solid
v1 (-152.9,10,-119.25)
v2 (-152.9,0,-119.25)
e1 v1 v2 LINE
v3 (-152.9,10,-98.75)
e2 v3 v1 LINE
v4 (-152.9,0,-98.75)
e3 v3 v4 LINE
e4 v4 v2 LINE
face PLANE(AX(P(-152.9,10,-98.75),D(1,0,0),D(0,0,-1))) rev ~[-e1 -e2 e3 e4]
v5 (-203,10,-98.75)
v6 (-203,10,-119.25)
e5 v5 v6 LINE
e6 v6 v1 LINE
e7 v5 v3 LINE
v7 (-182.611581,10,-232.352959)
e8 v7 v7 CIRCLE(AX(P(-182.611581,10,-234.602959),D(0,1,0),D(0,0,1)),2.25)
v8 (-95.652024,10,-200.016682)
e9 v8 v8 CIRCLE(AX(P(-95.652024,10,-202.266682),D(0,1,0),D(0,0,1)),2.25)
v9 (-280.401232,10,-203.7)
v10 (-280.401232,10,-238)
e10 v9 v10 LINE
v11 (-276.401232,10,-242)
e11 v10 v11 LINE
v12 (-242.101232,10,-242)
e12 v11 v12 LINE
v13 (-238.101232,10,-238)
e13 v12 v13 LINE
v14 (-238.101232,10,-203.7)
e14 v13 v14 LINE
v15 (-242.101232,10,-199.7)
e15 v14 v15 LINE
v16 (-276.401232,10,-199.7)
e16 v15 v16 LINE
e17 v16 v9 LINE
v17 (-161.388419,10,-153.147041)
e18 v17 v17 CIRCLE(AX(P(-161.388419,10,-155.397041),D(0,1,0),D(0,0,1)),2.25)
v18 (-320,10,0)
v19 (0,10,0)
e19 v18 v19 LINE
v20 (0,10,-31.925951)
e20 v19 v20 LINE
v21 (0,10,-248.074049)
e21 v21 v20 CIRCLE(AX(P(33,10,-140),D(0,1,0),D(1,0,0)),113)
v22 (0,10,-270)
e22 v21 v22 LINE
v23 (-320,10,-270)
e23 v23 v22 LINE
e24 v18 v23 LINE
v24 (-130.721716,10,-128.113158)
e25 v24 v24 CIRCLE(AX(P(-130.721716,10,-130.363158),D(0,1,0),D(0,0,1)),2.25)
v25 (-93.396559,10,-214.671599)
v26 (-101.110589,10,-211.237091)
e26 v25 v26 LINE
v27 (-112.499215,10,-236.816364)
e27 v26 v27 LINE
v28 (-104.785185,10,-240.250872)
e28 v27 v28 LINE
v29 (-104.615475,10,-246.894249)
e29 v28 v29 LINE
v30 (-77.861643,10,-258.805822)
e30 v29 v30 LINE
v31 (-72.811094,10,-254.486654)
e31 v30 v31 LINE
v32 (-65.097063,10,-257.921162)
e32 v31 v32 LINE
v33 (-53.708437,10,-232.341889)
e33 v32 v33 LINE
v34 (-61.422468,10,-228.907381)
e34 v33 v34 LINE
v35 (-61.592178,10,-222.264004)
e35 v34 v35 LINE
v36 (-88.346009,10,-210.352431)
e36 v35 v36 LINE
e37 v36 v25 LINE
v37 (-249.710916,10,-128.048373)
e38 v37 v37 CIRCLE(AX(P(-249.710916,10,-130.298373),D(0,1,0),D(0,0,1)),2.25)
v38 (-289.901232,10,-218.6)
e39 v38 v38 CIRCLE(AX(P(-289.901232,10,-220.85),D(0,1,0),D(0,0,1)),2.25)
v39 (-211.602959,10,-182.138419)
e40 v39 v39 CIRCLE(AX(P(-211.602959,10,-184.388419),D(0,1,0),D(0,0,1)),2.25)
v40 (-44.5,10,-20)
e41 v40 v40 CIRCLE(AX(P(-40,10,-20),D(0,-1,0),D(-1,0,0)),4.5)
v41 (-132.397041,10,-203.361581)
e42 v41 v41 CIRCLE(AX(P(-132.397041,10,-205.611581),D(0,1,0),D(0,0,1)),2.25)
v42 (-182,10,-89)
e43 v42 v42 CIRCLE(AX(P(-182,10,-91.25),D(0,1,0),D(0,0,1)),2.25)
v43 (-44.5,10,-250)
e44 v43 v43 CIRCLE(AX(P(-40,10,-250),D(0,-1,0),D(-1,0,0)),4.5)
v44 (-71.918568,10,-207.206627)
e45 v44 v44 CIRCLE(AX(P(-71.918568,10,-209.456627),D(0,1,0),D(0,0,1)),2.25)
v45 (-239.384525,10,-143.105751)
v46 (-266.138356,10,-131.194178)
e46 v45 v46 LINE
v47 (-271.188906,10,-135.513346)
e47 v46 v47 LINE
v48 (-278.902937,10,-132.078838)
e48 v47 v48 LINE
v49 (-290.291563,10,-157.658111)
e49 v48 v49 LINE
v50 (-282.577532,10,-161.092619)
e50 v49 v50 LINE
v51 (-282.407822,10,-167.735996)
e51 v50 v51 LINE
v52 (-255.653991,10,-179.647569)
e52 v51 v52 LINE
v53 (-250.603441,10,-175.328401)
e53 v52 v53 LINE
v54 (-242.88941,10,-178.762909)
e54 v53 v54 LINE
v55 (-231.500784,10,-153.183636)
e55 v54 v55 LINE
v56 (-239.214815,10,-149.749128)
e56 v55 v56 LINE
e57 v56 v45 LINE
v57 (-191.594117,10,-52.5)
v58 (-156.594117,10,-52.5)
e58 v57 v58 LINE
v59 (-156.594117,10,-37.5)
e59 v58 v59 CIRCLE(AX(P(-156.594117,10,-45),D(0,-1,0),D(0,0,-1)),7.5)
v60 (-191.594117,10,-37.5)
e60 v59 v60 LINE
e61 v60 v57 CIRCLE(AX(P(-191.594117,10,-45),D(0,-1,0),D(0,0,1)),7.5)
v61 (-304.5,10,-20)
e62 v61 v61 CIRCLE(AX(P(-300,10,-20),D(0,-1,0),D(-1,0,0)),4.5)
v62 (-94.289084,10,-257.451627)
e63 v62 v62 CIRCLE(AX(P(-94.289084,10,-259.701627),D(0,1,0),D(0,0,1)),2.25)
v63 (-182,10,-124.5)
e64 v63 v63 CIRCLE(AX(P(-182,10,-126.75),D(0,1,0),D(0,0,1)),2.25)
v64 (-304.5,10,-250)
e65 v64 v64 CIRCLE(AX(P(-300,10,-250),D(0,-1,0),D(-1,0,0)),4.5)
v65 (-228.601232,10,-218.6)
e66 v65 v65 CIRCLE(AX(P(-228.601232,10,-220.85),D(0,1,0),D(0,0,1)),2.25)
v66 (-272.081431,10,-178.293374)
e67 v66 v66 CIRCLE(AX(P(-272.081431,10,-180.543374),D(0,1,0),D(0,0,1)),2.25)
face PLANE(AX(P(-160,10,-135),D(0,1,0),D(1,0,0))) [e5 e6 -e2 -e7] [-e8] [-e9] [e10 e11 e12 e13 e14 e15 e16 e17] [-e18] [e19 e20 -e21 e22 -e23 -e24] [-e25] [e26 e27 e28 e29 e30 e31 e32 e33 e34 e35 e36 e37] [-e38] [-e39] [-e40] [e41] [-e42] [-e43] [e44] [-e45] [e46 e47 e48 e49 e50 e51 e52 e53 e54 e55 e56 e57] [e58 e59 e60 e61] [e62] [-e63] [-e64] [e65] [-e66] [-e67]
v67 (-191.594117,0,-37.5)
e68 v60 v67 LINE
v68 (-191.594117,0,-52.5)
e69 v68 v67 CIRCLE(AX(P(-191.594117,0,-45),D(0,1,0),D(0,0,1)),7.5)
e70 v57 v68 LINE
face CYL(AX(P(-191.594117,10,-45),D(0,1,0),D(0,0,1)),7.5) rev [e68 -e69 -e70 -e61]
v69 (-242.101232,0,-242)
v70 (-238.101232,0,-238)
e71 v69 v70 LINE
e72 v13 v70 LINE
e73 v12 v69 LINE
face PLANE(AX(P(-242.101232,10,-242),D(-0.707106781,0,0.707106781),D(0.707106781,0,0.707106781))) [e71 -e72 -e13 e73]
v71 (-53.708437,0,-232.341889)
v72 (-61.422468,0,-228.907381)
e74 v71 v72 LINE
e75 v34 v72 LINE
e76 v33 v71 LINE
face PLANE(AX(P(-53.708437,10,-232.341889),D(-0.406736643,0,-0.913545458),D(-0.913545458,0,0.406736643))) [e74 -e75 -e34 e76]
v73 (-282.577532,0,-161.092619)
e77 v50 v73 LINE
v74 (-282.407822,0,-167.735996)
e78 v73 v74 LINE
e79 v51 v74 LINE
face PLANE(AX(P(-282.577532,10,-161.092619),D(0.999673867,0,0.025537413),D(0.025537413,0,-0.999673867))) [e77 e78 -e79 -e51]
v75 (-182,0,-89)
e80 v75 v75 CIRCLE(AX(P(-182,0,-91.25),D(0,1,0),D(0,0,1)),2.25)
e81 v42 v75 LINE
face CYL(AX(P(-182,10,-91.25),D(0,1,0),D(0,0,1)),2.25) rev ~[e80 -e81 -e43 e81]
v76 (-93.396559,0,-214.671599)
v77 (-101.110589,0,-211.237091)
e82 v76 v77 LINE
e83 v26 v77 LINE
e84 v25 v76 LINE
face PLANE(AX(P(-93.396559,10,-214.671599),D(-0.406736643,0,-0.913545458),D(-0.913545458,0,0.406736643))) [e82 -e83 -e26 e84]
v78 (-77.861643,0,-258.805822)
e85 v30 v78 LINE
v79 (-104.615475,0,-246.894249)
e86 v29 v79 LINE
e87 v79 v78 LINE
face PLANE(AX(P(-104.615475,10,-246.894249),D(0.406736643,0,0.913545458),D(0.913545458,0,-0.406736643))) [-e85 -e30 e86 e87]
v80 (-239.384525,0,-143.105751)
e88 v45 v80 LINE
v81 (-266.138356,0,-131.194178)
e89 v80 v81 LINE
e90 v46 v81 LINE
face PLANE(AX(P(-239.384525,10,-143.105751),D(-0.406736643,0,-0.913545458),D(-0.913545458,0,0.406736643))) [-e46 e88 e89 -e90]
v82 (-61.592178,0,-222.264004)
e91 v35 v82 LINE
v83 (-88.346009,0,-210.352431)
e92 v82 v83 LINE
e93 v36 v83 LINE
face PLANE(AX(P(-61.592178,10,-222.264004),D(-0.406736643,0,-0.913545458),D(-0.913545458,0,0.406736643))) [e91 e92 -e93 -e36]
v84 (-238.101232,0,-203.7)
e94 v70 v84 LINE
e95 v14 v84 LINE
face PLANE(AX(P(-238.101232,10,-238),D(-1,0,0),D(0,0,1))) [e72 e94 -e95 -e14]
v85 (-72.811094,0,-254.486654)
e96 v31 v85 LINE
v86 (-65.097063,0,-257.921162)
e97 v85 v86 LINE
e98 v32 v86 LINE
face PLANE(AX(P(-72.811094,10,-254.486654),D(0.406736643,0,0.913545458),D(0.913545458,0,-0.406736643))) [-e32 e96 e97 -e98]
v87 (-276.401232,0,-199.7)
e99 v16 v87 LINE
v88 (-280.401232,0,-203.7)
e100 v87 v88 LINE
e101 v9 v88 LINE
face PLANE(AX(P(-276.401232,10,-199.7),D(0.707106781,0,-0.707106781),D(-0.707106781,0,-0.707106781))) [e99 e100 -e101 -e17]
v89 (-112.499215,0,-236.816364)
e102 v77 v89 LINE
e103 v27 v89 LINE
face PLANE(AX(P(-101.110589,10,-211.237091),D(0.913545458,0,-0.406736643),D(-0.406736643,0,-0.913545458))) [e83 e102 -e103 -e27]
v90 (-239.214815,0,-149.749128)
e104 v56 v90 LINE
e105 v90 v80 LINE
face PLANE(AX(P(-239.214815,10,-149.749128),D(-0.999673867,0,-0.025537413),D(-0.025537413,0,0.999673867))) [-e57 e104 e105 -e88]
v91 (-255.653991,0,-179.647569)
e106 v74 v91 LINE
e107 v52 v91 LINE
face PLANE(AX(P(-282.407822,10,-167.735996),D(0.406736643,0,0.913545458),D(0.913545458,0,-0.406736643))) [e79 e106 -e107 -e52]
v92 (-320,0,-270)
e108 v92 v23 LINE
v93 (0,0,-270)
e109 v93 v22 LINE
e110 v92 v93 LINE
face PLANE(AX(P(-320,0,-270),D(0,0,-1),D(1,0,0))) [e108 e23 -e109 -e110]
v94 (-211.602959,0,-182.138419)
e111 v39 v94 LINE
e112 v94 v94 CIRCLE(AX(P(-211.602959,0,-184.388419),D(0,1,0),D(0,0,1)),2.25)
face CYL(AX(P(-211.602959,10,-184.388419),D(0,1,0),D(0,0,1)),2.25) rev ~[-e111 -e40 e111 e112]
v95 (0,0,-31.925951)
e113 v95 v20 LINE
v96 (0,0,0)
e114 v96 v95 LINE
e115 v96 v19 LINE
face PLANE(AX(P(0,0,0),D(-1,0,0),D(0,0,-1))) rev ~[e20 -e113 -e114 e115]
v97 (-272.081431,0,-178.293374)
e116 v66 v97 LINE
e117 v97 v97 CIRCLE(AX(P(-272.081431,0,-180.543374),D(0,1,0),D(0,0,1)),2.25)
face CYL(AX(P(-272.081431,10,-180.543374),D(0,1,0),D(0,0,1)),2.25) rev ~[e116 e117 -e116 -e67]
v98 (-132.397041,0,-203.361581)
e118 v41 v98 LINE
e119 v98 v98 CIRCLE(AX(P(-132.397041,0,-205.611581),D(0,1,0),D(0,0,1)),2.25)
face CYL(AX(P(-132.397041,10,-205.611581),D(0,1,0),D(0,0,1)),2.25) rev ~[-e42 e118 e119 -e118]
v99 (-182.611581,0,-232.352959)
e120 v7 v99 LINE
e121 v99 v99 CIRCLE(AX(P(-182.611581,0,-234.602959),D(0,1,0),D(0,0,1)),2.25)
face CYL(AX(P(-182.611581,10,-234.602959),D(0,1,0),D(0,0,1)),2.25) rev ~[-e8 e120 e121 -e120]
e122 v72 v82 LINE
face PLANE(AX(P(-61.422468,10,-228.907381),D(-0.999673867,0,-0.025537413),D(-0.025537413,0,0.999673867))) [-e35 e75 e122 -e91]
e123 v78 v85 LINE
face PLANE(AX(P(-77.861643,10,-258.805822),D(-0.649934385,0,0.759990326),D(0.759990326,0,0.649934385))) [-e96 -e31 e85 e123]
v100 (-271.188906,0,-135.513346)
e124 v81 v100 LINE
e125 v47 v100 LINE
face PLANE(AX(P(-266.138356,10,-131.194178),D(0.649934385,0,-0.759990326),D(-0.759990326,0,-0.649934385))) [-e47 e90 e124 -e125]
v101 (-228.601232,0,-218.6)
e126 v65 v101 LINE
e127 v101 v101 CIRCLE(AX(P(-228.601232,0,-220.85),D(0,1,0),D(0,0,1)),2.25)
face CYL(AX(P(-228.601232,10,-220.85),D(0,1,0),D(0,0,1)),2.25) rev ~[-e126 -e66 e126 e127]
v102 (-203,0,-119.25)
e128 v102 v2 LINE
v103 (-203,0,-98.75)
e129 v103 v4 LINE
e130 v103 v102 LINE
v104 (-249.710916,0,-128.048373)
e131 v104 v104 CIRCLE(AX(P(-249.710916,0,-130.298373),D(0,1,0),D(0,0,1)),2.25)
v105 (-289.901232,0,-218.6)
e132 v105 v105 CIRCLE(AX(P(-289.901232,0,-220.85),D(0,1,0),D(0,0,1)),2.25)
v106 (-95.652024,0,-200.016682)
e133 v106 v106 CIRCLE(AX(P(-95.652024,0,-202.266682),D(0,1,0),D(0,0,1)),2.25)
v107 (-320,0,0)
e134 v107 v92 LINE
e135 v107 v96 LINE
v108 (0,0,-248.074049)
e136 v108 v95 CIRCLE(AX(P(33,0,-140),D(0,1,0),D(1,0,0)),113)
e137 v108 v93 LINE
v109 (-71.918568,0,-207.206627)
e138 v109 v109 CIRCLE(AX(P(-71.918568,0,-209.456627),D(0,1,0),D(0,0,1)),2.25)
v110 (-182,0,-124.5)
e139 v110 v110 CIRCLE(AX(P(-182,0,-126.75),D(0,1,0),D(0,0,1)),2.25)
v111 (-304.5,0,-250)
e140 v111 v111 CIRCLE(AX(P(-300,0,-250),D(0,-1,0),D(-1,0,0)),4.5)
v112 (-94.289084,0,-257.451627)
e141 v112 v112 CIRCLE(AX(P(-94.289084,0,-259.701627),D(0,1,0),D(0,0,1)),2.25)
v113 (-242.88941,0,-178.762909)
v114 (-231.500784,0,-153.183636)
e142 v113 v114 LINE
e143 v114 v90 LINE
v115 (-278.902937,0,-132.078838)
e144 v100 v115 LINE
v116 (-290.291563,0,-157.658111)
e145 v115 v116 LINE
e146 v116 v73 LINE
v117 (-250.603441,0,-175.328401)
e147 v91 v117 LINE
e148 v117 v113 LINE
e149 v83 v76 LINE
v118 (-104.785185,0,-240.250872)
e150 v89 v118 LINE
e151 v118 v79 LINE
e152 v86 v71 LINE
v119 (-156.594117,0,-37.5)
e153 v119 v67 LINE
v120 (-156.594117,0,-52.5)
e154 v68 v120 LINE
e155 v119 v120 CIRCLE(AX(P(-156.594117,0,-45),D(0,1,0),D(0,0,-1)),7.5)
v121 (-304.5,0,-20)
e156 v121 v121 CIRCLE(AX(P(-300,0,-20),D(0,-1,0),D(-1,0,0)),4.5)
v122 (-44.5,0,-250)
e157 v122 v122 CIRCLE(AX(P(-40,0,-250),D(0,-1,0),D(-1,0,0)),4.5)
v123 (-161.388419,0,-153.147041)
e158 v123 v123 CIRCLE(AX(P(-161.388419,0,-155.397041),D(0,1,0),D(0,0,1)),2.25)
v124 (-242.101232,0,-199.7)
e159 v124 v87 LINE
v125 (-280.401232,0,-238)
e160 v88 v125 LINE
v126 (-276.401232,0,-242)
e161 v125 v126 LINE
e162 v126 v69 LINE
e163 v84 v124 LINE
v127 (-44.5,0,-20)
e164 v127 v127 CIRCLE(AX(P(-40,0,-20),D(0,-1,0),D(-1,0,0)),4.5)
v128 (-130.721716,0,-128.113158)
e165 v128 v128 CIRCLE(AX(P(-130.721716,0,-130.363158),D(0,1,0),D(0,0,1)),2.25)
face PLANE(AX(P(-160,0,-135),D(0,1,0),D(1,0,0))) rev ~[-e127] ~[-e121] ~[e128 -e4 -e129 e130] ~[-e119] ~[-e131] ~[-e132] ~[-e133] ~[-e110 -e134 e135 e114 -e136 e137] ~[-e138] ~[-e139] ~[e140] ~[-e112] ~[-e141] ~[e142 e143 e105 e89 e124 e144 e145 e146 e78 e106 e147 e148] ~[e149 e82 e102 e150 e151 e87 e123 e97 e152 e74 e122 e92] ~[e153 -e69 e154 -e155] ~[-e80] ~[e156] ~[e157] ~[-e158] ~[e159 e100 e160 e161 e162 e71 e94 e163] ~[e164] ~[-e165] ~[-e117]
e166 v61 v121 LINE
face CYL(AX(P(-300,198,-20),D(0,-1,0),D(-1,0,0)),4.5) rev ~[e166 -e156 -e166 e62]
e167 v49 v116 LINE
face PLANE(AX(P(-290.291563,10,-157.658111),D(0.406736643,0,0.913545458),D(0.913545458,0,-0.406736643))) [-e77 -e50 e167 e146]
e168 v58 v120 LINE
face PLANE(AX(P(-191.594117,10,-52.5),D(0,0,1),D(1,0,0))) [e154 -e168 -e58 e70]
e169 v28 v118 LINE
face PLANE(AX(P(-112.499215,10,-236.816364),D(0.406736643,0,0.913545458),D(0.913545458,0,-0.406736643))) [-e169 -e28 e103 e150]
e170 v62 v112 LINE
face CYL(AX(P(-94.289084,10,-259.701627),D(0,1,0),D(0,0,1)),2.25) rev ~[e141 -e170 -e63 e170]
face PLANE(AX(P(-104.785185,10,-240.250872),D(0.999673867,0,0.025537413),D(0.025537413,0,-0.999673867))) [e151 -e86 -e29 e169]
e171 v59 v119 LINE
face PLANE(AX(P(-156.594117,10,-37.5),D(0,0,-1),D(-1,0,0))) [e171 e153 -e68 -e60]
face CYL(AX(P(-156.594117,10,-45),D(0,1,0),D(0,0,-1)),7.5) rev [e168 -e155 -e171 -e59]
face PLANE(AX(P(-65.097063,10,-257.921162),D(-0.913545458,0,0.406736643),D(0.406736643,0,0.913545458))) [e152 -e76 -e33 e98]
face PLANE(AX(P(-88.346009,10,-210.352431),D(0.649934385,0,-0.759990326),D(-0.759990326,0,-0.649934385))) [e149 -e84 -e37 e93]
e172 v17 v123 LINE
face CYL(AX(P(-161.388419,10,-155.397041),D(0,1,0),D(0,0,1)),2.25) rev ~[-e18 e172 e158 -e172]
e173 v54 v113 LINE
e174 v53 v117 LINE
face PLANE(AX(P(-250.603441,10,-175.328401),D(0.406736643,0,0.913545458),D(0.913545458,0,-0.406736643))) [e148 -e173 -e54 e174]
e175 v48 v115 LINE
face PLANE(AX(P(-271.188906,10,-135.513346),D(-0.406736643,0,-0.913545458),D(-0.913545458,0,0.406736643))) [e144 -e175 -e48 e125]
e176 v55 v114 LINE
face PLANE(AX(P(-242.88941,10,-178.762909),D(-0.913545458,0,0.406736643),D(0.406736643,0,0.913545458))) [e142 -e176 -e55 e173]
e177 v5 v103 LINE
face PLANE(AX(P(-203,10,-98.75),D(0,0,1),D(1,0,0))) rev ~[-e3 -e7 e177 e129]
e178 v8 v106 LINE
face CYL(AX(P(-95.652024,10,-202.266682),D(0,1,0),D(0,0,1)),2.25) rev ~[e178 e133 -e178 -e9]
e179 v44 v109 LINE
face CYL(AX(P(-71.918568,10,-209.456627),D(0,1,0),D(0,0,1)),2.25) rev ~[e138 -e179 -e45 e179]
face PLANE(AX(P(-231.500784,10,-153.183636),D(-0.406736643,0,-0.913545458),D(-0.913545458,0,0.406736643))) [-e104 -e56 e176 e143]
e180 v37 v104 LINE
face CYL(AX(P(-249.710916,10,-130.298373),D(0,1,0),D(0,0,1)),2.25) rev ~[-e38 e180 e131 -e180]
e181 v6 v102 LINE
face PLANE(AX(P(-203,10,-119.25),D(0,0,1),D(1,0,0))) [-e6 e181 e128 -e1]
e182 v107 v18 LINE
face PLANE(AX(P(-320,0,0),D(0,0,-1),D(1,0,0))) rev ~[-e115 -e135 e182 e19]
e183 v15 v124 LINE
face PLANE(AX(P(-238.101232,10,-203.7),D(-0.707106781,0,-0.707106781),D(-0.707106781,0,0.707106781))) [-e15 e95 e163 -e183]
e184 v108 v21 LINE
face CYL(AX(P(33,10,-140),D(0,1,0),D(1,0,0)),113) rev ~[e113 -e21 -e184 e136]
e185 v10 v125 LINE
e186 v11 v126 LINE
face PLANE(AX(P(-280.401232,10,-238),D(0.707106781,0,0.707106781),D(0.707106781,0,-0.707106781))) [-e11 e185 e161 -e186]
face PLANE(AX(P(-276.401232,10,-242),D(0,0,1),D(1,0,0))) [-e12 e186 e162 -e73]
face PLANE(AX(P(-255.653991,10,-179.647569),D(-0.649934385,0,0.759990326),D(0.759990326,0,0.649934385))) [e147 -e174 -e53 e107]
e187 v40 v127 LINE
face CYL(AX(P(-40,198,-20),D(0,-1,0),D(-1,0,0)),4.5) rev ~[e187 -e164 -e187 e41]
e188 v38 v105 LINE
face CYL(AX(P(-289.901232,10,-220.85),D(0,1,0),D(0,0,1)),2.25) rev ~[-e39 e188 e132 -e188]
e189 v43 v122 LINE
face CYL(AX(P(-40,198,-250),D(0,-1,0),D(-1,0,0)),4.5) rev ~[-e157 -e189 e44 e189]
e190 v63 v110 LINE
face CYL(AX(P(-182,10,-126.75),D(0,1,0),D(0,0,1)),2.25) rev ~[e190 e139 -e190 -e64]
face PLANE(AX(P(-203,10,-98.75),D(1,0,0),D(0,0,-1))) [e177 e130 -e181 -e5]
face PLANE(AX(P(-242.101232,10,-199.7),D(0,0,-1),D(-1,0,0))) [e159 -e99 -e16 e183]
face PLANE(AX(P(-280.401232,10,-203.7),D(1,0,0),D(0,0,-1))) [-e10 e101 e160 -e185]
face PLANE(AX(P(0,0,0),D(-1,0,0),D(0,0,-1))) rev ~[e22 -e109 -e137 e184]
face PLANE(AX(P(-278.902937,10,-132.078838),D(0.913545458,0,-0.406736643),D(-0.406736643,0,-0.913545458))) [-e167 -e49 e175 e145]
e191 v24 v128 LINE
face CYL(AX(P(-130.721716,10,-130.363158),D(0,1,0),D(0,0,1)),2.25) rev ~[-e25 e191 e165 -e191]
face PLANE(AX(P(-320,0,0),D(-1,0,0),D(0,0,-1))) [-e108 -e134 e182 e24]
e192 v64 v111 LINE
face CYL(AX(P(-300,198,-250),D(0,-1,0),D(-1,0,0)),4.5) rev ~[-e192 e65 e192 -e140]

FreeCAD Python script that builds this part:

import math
import FreeCAD as App
import Part
import Sketcher

V = App.Vector
Q = App.Units.Quantity

doc = App.newDocument("Part")
body = doc.addObject("PartDesign::Body", "Body")

# Sketch on XZ plane
sketch1 = doc.addObject("Sketcher::SketchObject", "Sketch")
body.addObject(sketch1)
sketch1.AttachmentSupport = (doc.XZ_Plane, [""])
sketch1.MapMode = "FlatFace"
sketch1.addGeometry([
    Part.LineSegment(V(-320, -270, 0), V(-320, 0, 0)),
    Part.LineSegment(V(-320, 0, 0), V(0, 0, 0)),
    Part.LineSegment(V(0, 0, 0), V(0, -270, 0)),
    Part.LineSegment(V(0, -270, 0), V(-320, -270, 0)),
], False)
sketch1.addConstraint([
    Sketcher.Constraint("Coincident", 0, 2, 1, 1),
    Sketcher.Constraint("Coincident", 1, 2, 2, 1),
    Sketcher.Constraint("Coincident", 2, 2, 3, 1),
    Sketcher.Constraint("Coincident", 3, 2, 0, 1),
    Sketcher.Constraint("Vertical", 0),
    Sketcher.Constraint("Horizontal", 1),
    Sketcher.Constraint("Vertical", 2),
    Sketcher.Constraint("Horizontal", 3),
    Sketcher.Constraint("Coincident", 1, 2, -1, 1),
    Sketcher.Constraint("DistanceX", 1, 1, 1, 2, Q("320 mm")),
    Sketcher.Constraint("DistanceY", 0, 1, 0, 2, Q("270 mm")),
])
pad1 = doc.addObject("PartDesign::Pad", "Pad")
body.addObject(pad1)
pad1.Profile = sketch1
pad1.Length = 10
pad1.Reversed = True

# Sketch on XZ plane
sketch2 = doc.addObject("Sketcher::SketchObject", "Sketch001")
body.addObject(sketch2)
sketch2.AttachmentSupport = (doc.XZ_Plane, [""])
sketch2.MapMode = "FlatFace"
sketch2.AttachmentOffset = App.Placement(V(0, 0, -10), App.Rotation())
sketch2.addGeometry([
    Part.Circle(V(-132.397041, -205.611581, 0), V(0, 0, 1), 2.25),
    Part.Circle(V(-161.388419, -155.397041, 0), V(0, 0, 1), 2.25),
    Part.Circle(V(-182.611581, -234.602959, 0), V(0, 0, 1), 2.25),
    Part.Circle(V(-211.602959, -184.388419, 0), V(0, 0, 1), 2.25),
], False)
sketch2.addConstraint([
    Sketcher.Constraint("Equal", 0, 1),
    Sketcher.Constraint("Equal", 1, 2),
    Sketcher.Constraint("Equal", 2, 3),
    Sketcher.Constraint("Diameter", 0, Q("4.5 mm")),
    Sketcher.Constraint("DistanceX", 0, 3, -1, 1, Q("132.397041 mm")),
    Sketcher.Constraint("DistanceY", 0, 3, -1, 1, Q("205.611581 mm")),
    Sketcher.Constraint("DistanceX", 1, 3, -1, 1, Q("161.388419 mm")),
    Sketcher.Constraint("DistanceY", 1, 3, -1, 1, Q("155.397041 mm")),
    Sketcher.Constraint("DistanceX", 2, 3, -1, 1, Q("182.611581 mm")),
    Sketcher.Constraint("DistanceY", 2, 3, -1, 1, Q("234.602959 mm")),
    Sketcher.Constraint("DistanceX", 3, 3, -1, 1, Q("211.602959 mm")),
    Sketcher.Constraint("DistanceY", 3, 3, -1, 1, Q("184.388419 mm")),
])
pocket1 = doc.addObject("PartDesign::Pocket", "Pocket")
body.addObject(pocket1)
pocket1.Profile = sketch2
pocket1.Length = 10
pocket1.Reversed = True

# Sketch on XZ plane
sketch3 = doc.addObject("Sketcher::SketchObject", "Sketch002")
body.addObject(sketch3)
sketch3.AttachmentSupport = (doc.XZ_Plane, [""])
sketch3.MapMode = "FlatFace"
sketch3.AttachmentOffset = App.Placement(V(0, 0, -10), App.Rotation())
sketch3.addGeometry([
    Part.Circle(V(-272.081431, -180.543374, 0), V(0, 0, 1), 2.25),  # 0
    Part.Circle(V(-249.710916, -130.298373, 0), V(0, 0, 1), 2.25),  # 1
    Part.Circle(V(-94.289084, -259.701627, 0), V(0, 0, 1), 2.25),  # 2
    Part.Circle(V(-71.918568, -209.456627, 0), V(0, 0, 1), 2.25),  # 3
    Part.LineSegment(V(-104.785185, -240.250872, 0), V(-112.499215, -236.816364, 0)),  # 4
    Part.LineSegment(V(-112.499215, -236.816364, 0), V(-101.110589, -211.237091, 0)),  # 5
    Part.LineSegment(V(-101.110589, -211.237091, 0), V(-93.396559, -214.671599, 0)),  # 6
    Part.LineSegment(V(-93.396559, -214.671599, 0), V(-88.346009, -210.352431, 0)),  # 7
    Part.LineSegment(V(-88.346009, -210.352431, 0), V(-61.592178, -222.264004, 0)),  # 8
    Part.LineSegment(V(-61.592178, -222.264004, 0), V(-61.422468, -228.907381, 0)),  # 9
    Part.LineSegment(V(-61.422468, -228.907381, 0), V(-53.708437, -232.341889, 0)),  # 10
    Part.LineSegment(V(-53.708437, -232.341889, 0), V(-65.097063, -257.921162, 0)),  # 11
    Part.LineSegment(V(-65.097063, -257.921162, 0), V(-72.811094, -254.486654, 0)),  # 12
    Part.LineSegment(V(-72.811094, -254.486654, 0), V(-77.861643, -258.805822, 0)),  # 13
    Part.LineSegment(V(-77.861643, -258.805822, 0), V(-104.615475, -246.894249, 0)),  # 14
    Part.LineSegment(V(-104.615475, -246.894249, 0), V(-104.785185, -240.250872, 0)),  # 15
    Part.LineSegment(V(-231.500784, -153.183636, 0), V(-242.88941, -178.762909, 0)),  # 16
    Part.LineSegment(V(-242.88941, -178.762909, 0), V(-250.603441, -175.328401, 0)),  # 17
    Part.LineSegment(V(-250.603441, -175.328401, 0), V(-255.653991, -179.647569, 0)),  # 18
    Part.LineSegment(V(-255.653991, -179.647569, 0), V(-282.407822, -167.735996, 0)),  # 19
    Part.LineSegment(V(-282.407822, -167.735996, 0), V(-282.577532, -161.092619, 0)),  # 20
    Part.LineSegment(V(-282.577532, -161.092619, 0), V(-290.291563, -157.658111, 0)),  # 21
    Part.LineSegment(V(-290.291563, -157.658111, 0), V(-278.902937, -132.078838, 0)),  # 22
    Part.LineSegment(V(-278.902937, -132.078838, 0), V(-271.188906, -135.513346, 0)),  # 23
    Part.LineSegment(V(-271.188906, -135.513346, 0), V(-266.138356, -131.194178, 0)),  # 24
    Part.LineSegment(V(-266.138356, -131.194178, 0), V(-239.384525, -143.105751, 0)),  # 25
    Part.LineSegment(V(-239.384525, -143.105751, 0), V(-239.214815, -149.749128, 0)),  # 26
    Part.LineSegment(V(-239.214815, -149.749128, 0), V(-231.500784, -153.183636, 0)),  # 27
], False)
sketch3.addConstraint([
    Sketcher.Constraint("Coincident", 4, 2, 5, 1),
    Sketcher.Constraint("Coincident", 5, 2, 6, 1),
    Sketcher.Constraint("Coincident", 6, 2, 7, 1),
    Sketcher.Constraint("Coincident", 7, 2, 8, 1),
    Sketcher.Constraint("Coincident", 8, 2, 9, 1),
    Sketcher.Constraint("Coincident", 9, 2, 10, 1),
    Sketcher.Constraint("Coincident", 10, 2, 11, 1),
    Sketcher.Constraint("Coincident", 11, 2, 12, 1),
    Sketcher.Constraint("Coincident", 12, 2, 13, 1),
    Sketcher.Constraint("Coincident", 13, 2, 14, 1),
    Sketcher.Constraint("Coincident", 14, 2, 15, 1),
    Sketcher.Constraint("Coincident", 15, 2, 4, 1),
    Sketcher.Constraint("Coincident", 16, 2, 17, 1),
    Sketcher.Constraint("Coincident", 17, 2, 18, 1),
    Sketcher.Constraint("Coincident", 18, 2, 19, 1),
    Sketcher.Constraint("Coincident", 19, 2, 20, 1),
    Sketcher.Constraint("Coincident", 20, 2, 21, 1),
    Sketcher.Constraint("Coincident", 21, 2, 22, 1),
    Sketcher.Constraint("Coincident", 22, 2, 23, 1),
    Sketcher.Constraint("Coincident", 23, 2, 24, 1),
    Sketcher.Constraint("Coincident", 24, 2, 25, 1),
    Sketcher.Constraint("Coincident", 25, 2, 26, 1),
    Sketcher.Constraint("Coincident", 26, 2, 27, 1),
    Sketcher.Constraint("Coincident", 27, 2, 16, 1),
    Sketcher.Constraint("Equal", 0, 1),
    Sketcher.Constraint("Equal", 1, 2),
    Sketcher.Constraint("Equal", 2, 3),
    Sketcher.Constraint("Perpendicular", 4, 5),
    Sketcher.Constraint("Perpendicular", 5, 6),
    Sketcher.Constraint("Parallel", 6, 8),
    Sketcher.Constraint("Parallel", 8, 10),
    Sketcher.Constraint("Perpendicular", 10, 11),
    Sketcher.Constraint("Perpendicular", 11, 12),
    Sketcher.Constraint("Parallel", 7, 13),
    Sketcher.Constraint("Parallel", 12, 14),
    Sketcher.Constraint("Parallel", 9, 15),
    Sketcher.Constraint("Perpendicular", 14, 16),
    Sketcher.Constraint("Perpendicular", 16, 17),
    Sketcher.Constraint("Parallel", 13, 18),
    Sketcher.Constraint("Parallel", 17, 19),
    Sketcher.Constraint("Parallel", 15, 20),
    Sketcher.Constraint("Parallel", 19, 21),
    Sketcher.Constraint("Perpendicular", 21, 22),
    Sketcher.Constraint("Perpendicular", 22, 23),
    Sketcher.Constraint("Parallel", 18, 24),
    Sketcher.Constraint("Parallel", 23, 25),
    Sketcher.Constraint("Parallel", 20, 26),
    Sketcher.Constraint("Parallel", 25, 27),
    Sketcher.Constraint("Equal", 4, 6),
    Sketcher.Constraint("Equal", 7, 9),
    Sketcher.Constraint("Equal", 6, 10),
    Sketcher.Constraint("Equal", 5, 11),
    Sketcher.Constraint("Equal", 10, 12),
    Sketcher.Constraint("Equal", 9, 13),
    Sketcher.Constraint("Equal", 11, 16),
    Sketcher.Constraint("Equal", 12, 17),
    Sketcher.Constraint("Equal", 15, 18),
    Sketcher.Constraint("Equal", 14, 19),
    Sketcher.Constraint("Equal", 18, 20),
    Sketcher.Constraint("Equal", 17, 21),
    Sketcher.Constraint("Equal", 16, 22),
    Sketcher.Constraint("Equal", 21, 23),
    Sketcher.Constraint("Equal", 20, 24),
    Sketcher.Constraint("Equal", 19, 25),
    Sketcher.Constraint("Diameter", 0, Q("4.5 mm")),
    Sketcher.Constraint("Angle", 4, Q("156 deg")),
    Sketcher.Constraint("Distance", 5, Q("28 mm")),
    Sketcher.Constraint("DistanceY", 0, 3, 1, 3, Q("50.245 mm")),
    Sketcher.Constraint("DistanceY", 2, 3, 3, 3, Q("50.245 mm")),
    Sketcher.Constraint("DistanceY", 6, 2, -1, 1, Q("214.671599 mm")),
    Sketcher.Constraint("DistanceY", 17, 2, -1, 1, Q("175.328401 mm")),
    Sketcher.Constraint("DistanceX", 1, 3, 4, 2, Q("137.211701 mm")),
    Sketcher.Constraint("DistanceX", 3, 3, 9, 2, Q("10.496101 mm")),
    Sketcher.Constraint("DistanceX", 15, 2, 2, 3, Q("10.496101 mm")),
    Sketcher.Constraint("DistanceX", 20, 2, 0, 3, Q("10.496101 mm")),
    Sketcher.Constraint("DistanceX", 1, 3, 26, 2, Q("10.496101 mm")),
    Sketcher.Constraint("Distance", 4, Q("8.444058 mm")),
    Sketcher.Constraint("DistanceX", 0, 3, -1, 1, Q("272.081431 mm")),
    Sketcher.Constraint("DistanceX", 3, 3, -1, 1, Q("71.918568 mm")),
    Sketcher.Constraint("DistanceX", 7, 2, -1, 1, Q("88.346009 mm")),
    Sketcher.Constraint("DistanceY", 7, 2, -1, 1, Q("210.352431 mm")),
    Sketcher.Constraint("DistanceY", 9, 2, -1, 1, Q("228.907381 mm")),
    Sketcher.Constraint("DistanceY", 4, 2, 0, 3, Q("56.27299 mm")),
    Sketcher.Constraint("DistanceY", 2, 3, -1, 1, Q("259.701627 mm")),
])
pocket2 = doc.addObject("PartDesign::Pocket", "Pocket001")
body.addObject(pocket2)
pocket2.Profile = sketch3
pocket2.Length = 33
pocket2.Reversed = True

# Sketch on XZ plane
sketch4 = doc.addObject("Sketcher::SketchObject", "Sketch003")
body.addObject(sketch4)
sketch4.AttachmentSupport = (doc.XZ_Plane, [""])
sketch4.MapMode = "FlatFace"
sketch4.AttachmentOffset = App.Placement(V(0, 0, -10), App.Rotation())
sketch4.addGeometry([
    Part.Circle(V(-300, -20, 0), V(0, 0, 1), 4.5),
    Part.Circle(V(-300, -250, 0), V(0, 0, 1), 4.5),
    Part.Circle(V(-40, -250, 0), V(0, 0, 1), 4.5),
    Part.Circle(V(-40, -20, 0), V(0, 0, 1), 4.5),
], False)
sketch4.addConstraint([
    Sketcher.Constraint("Equal", 0, 1),
    Sketcher.Constraint("Equal", 1, 2),
    Sketcher.Constraint("Equal", 2, 3),
    Sketcher.Constraint("Horizontal", 1, 3, 2, 3),
    Sketcher.Constraint("Horizontal", 0, 3, 3, 3),
    Sketcher.Constraint("Vertical", 0, 3, 1, 3),
    Sketcher.Constraint("Vertical", 2, 3, 3, 3),
    Sketcher.Constraint("Diameter", 0, Q("9 mm")),
    Sketcher.Constraint("DistanceX", 0, 3, -1, 1, Q("300 mm")),
    Sketcher.Constraint("DistanceY", 0, 3, -1, 1, Q("20 mm")),
    Sketcher.Constraint("DistanceY", 1, 3, -1, 1, Q("250 mm")),
    Sketcher.Constraint("DistanceX", 2, 3, -1, 1, Q("40 mm")),
])
doc.recompute()
hole = doc.addObject("PartDesign::Hole", "Hole")
body.addObject(hole)
hole.Profile = sketch4
hole.ThreadType = "None"
hole.Diameter = 9
hole.DepthType = "Dimension"
hole.Depth = 188
hole.DrillPoint = "Angled"
hole.DrillPointAngle = 118
hole.Reversed = True

# Sketch on XZ plane
sketch5 = doc.addObject("Sketcher::SketchObject", "Sketch004")
body.addObject(sketch5)
sketch5.AttachmentSupport = (doc.XZ_Plane, [""])
sketch5.MapMode = "FlatFace"
sketch5.AttachmentOffset = App.Placement(V(0, 0, -10), App.Rotation())
sketch5.addGeometry(Part.Circle(V(33, -140, 0), V(0, 0, 1), 113), False)
sketch5.addConstraint([
    Sketcher.Constraint("Diameter", 0, Q("226 mm")),
    Sketcher.Constraint("DistanceX", -1, 1, 0, 3, Q("33 mm")),
    Sketcher.Constraint("DistanceY", 0, 3, -1, 1, Q("140 mm")),
])
pocket3 = doc.addObject("PartDesign::Pocket", "Pocket002")
body.addObject(pocket3)
pocket3.Profile = sketch5
pocket3.Length = 10
pocket3.Reversed = True

# Sketch on XZ plane
sketch6 = doc.addObject("Sketcher::SketchObject", "Sketch005")
body.addObject(sketch6)
sketch6.AttachmentSupport = (doc.XZ_Plane, [""])
sketch6.MapMode = "FlatFace"
sketch6.AttachmentOffset = App.Placement(V(0, 0, -10), App.Rotation())
sketch6.addGeometry([
    Part.LineSegment(V(-276.401232, -242, 0), V(-280.401232, -238, 0)),  # 0
    Part.LineSegment(V(-280.401232, -238, 0), V(-280.401232, -203.7, 0)),  # 1
    Part.LineSegment(V(-280.401232, -203.7, 0), V(-276.401232, -199.7, 0)),  # 2
    Part.LineSegment(V(-276.401232, -199.7, 0), V(-242.101232, -199.7, 0)),  # 3
    Part.LineSegment(V(-242.101232, -199.7, 0), V(-238.101232, -203.7, 0)),  # 4
    Part.LineSegment(V(-238.101232, -203.7, 0), V(-238.101232, -238, 0)),  # 5
    Part.LineSegment(V(-238.101232, -238, 0), V(-242.101232, -242, 0)),  # 6
    Part.LineSegment(V(-242.101232, -242, 0), V(-276.401232, -242, 0)),  # 7
], False)
sketch6.addConstraint([
    Sketcher.Constraint("Coincident", 0, 2, 1, 1),
    Sketcher.Constraint("Coincident", 1, 2, 2, 1),
    Sketcher.Constraint("Coincident", 2, 2, 3, 1),
    Sketcher.Constraint("Coincident", 3, 2, 4, 1),
    Sketcher.Constraint("Coincident", 4, 2, 5, 1),
    Sketcher.Constraint("Coincident", 5, 2, 6, 1),
    Sketcher.Constraint("Coincident", 6, 2, 7, 1),
    Sketcher.Constraint("Coincident", 7, 2, 0, 1),
    Sketcher.Constraint("Vertical", 1),
    Sketcher.Constraint("Horizontal", 3),
    Sketcher.Constraint("Vertical", 5),
    Sketcher.Constraint("Horizontal", 7),
    Sketcher.Constraint("Perpendicular", 0, 2),
    Sketcher.Constraint("Perpendicular", 2, 4),
    Sketcher.Constraint("Perpendicular", 4, 6),
    Sketcher.Constraint("Horizontal", 1, 2, 4, 2),
    Sketcher.Constraint("Horizontal", 0, 2, 5, 2),
    Sketcher.Constraint("Vertical", 3, 2, 6, 2),
    Sketcher.Constraint("Vertical", 2, 2, 7, 2),
    Sketcher.Constraint("Equal", 7, 1),
    Sketcher.Constraint("DistanceX", 3, 1, 3, 2, Q("34.3 mm")),
    Sketcher.Constraint("DistanceY", 0, 2, -1, 1, Q("238 mm")),
    Sketcher.Constraint("DistanceY", 6, 2, -1, 1, Q("242 mm")),
    Sketcher.Constraint("DistanceX", 0, 2, -1, 1, Q("280.401232 mm")),
])
pocket4 = doc.addObject("PartDesign::Pocket", "Pocket003")
body.addObject(pocket4)
pocket4.Profile = sketch6
pocket4.Length = 22
pocket4.Reversed = True

# Sketch on XZ plane
sketch7 = doc.addObject("Sketcher::SketchObject", "Sketch006")
body.addObject(sketch7)
sketch7.AttachmentSupport = (doc.XZ_Plane, [""])
sketch7.MapMode = "FlatFace"
sketch7.AttachmentOffset = App.Placement(V(0, 0, -10), App.Rotation())
sketch7.addGeometry([
    Part.Circle(V(-228.601232, -220.85, 0), V(0, 0, 1), 2.25),
    Part.Circle(V(-289.901232, -220.85, 0), V(0, 0, 1), 2.25),
], False)
sketch7.addConstraint([
    Sketcher.Constraint("Equal", 0, 1),
    Sketcher.Constraint("Horizontal", 0, 3, 1, 3),
    Sketcher.Constraint("Diameter", 0, Q("4.5 mm")),
    Sketcher.Constraint("DistanceX", 1, 3, 0, 3, Q("61.3 mm")),
    Sketcher.Constraint("DistanceY", 0, 3, -1, 1, Q("220.85 mm")),
    Sketcher.Constraint("DistanceX", 1, 3, -1, 1, Q("289.901232 mm")),
])
pocket5 = doc.addObject("PartDesign::Pocket", "Pocket004")
body.addObject(pocket5)
pocket5.Profile = sketch7
pocket5.Length = 42.3
pocket5.Reversed = True

# Sketch on XZ plane
sketch8 = doc.addObject("Sketcher::SketchObject", "Sketch007")
body.addObject(sketch8)
sketch8.AttachmentSupport = (doc.XZ_Plane, [""])
sketch8.MapMode = "FlatFace"
sketch8.AttachmentOffset = App.Placement(V(0, 0, -10), App.Rotation())
sketch8.addGeometry([
    Part.LineSegment(V(-203, -119.25, 0), V(-203, -98.75, 0)),
    Part.LineSegment(V(-203, -98.75, 0), V(-152.9, -98.75, 0)),
    Part.LineSegment(V(-152.9, -98.75, 0), V(-152.9, -119.25, 0)),
    Part.LineSegment(V(-152.9, -119.25, 0), V(-203, -119.25, 0)),
], False)
sketch8.addConstraint([
    Sketcher.Constraint("Coincident", 0, 2, 1, 1),
    Sketcher.Constraint("Coincident", 1, 2, 2, 1),
    Sketcher.Constraint("Coincident", 2, 2, 3, 1),
    Sketcher.Constraint("Coincident", 3, 2, 0, 1),
    Sketcher.Constraint("Vertical", 0),
    Sketcher.Constraint("Horizontal", 1),
    Sketcher.Constraint("Vertical", 2),
    Sketcher.Constraint("Horizontal", 3),
    Sketcher.Constraint("DistanceX", 1, 1, 1, 2, Q("50.1 mm")),
    Sketcher.Constraint("DistanceY", 0, 1, 0, 2, Q("20.5 mm")),
    Sketcher.Constraint("DistanceX", 0, 2, -1, 1, Q("203 mm")),
    Sketcher.Constraint("DistanceY", 0, 2, -1, 1, Q("98.75 mm")),
])
pocket6 = doc.addObject("PartDesign::Pocket", "Pocket005")
body.addObject(pocket6)
pocket6.Profile = sketch8
pocket6.Length = 42.3
pocket6.Reversed = True

# Sketch on XZ plane
sketch9 = doc.addObject("Sketcher::SketchObject", "Sketch008")
body.addObject(sketch9)
sketch9.AttachmentSupport = (doc.XZ_Plane, [""])
sketch9.MapMode = "FlatFace"
sketch9.AttachmentOffset = App.Placement(V(0, 0, -10), App.Rotation())
sketch9.addGeometry([
    Part.Circle(V(-182, -91.25, 0), V(0, 0, 1), 2.25),
    Part.Circle(V(-182, -126.75, 0), V(0, 0, 1), 2.25),
], False)
sketch9.addConstraint([
    Sketcher.Constraint("Equal", 0, 1),
    Sketcher.Constraint("Vertical", 0, 3, 1, 3),
    Sketcher.Constraint("Diameter", 0, Q("4.5 mm")),
    Sketcher.Constraint("DistanceX", 0, 3, -1, 1, Q("182 mm")),
    Sketcher.Constraint("DistanceY", 1, 3, 0, 3, Q("35.5 mm")),
    Sketcher.Constraint("DistanceY", 0, 3, -1, 1, Q("91.25 mm")),
])
pocket7 = doc.addObject("PartDesign::Pocket", "Pocket006")
body.addObject(pocket7)
pocket7.Profile = sketch9
pocket7.Length = 18
pocket7.Reversed = True

# Sketch on XZ plane
sketch10 = doc.addObject("Sketcher::SketchObject", "Sketch009")
body.addObject(sketch10)
sketch10.AttachmentSupport = (doc.XZ_Plane, [""])
sketch10.MapMode = "FlatFace"
sketch10.AttachmentOffset = App.Placement(V(0, 0, -10), App.Rotation())
sketch10.addGeometry([
    Part.Circle(V(-95.652024, -202.266682, 0), V(0, 0, 1), 2.25),
    Part.Circle(V(-130.721716, -130.363158, 0), V(0, 0, 1), 2.25),
], False)
sketch10.addConstraint([
    Sketcher.Constraint("Equal", 0, 1),
    Sketcher.Constraint("Diameter", 0, Q("4.5 mm")),
    Sketcher.Constraint("DistanceY", 0, 3, -1, 1, Q("202.266682 mm")),
    Sketcher.Constraint("DistanceY", 1, 3, -1, 1, Q("130.363158 mm")),
    Sketcher.Constraint("DistanceX", 1, 3, 0, 3, Q("35.069692 mm")),
    Sketcher.Constraint("DistanceX", 0, 3, -1, 1, Q("95.652024 mm")),
])
pocket8 = doc.addObject("PartDesign::Pocket", "Pocket007")
body.addObject(pocket8)
pocket8.Profile = sketch10
pocket8.Length = 179
pocket8.Reversed = True

# Sketch on XZ plane
sketch11 = doc.addObject("Sketcher::SketchObject", "Sketch010")
body.addObject(sketch11)
sketch11.AttachmentSupport = (doc.XZ_Plane, [""])
sketch11.MapMode = "FlatFace"
sketch11.AttachmentOffset = App.Placement(V(0, 0, -10), App.Rotation())
sketch11.addGeometry([
    Part.LineSegment(V(-156.594117, -52.5, 0), V(-191.594117, -52.5, 0)),
    Part.ArcOfCircle(Part.Circle(V(-191.594117, -45, 0), V(0, 0, 1), 7.5), math.radians(90), math.radians(270)),
    Part.LineSegment(V(-191.594117, -37.5, 0), V(-156.594117, -37.5, 0)),
    Part.ArcOfCircle(Part.Circle(V(-156.594117, -45, 0), V(0, 0, 1), 7.5), math.radians(-90), math.radians(90)),
], False)
sketch11.addConstraint([
    Sketcher.Constraint("Tangent", 0, 2, 1, 2),
    Sketcher.Constraint("Tangent", 1, 1, 2, 1),
    Sketcher.Constraint("Tangent", 2, 2, 3, 2),
    Sketcher.Constraint("Tangent", 3, 1, 0, 1),
    Sketcher.Constraint("Horizontal", 0),
    Sketcher.Constraint("Horizontal", 2),
    Sketcher.Constraint("Radius", 1, Q("7.5 mm")),
    Sketcher.Constraint("DistanceX", 0, 2, 0, 1, Q("35 mm")),
    Sketcher.Constraint("DistanceY", 1, 3, -1, 1, Q("45 mm")),
    Sketcher.Constraint("DistanceX", 1, 3, -1, 1, Q("191.594117 mm")),
])
pocket9 = doc.addObject("PartDesign::Pocket", "Pocket008")
body.addObject(pocket9)
pocket9.Profile = sketch11
pocket9.Length = 179
pocket9.Reversed = True

doc.recompute()
